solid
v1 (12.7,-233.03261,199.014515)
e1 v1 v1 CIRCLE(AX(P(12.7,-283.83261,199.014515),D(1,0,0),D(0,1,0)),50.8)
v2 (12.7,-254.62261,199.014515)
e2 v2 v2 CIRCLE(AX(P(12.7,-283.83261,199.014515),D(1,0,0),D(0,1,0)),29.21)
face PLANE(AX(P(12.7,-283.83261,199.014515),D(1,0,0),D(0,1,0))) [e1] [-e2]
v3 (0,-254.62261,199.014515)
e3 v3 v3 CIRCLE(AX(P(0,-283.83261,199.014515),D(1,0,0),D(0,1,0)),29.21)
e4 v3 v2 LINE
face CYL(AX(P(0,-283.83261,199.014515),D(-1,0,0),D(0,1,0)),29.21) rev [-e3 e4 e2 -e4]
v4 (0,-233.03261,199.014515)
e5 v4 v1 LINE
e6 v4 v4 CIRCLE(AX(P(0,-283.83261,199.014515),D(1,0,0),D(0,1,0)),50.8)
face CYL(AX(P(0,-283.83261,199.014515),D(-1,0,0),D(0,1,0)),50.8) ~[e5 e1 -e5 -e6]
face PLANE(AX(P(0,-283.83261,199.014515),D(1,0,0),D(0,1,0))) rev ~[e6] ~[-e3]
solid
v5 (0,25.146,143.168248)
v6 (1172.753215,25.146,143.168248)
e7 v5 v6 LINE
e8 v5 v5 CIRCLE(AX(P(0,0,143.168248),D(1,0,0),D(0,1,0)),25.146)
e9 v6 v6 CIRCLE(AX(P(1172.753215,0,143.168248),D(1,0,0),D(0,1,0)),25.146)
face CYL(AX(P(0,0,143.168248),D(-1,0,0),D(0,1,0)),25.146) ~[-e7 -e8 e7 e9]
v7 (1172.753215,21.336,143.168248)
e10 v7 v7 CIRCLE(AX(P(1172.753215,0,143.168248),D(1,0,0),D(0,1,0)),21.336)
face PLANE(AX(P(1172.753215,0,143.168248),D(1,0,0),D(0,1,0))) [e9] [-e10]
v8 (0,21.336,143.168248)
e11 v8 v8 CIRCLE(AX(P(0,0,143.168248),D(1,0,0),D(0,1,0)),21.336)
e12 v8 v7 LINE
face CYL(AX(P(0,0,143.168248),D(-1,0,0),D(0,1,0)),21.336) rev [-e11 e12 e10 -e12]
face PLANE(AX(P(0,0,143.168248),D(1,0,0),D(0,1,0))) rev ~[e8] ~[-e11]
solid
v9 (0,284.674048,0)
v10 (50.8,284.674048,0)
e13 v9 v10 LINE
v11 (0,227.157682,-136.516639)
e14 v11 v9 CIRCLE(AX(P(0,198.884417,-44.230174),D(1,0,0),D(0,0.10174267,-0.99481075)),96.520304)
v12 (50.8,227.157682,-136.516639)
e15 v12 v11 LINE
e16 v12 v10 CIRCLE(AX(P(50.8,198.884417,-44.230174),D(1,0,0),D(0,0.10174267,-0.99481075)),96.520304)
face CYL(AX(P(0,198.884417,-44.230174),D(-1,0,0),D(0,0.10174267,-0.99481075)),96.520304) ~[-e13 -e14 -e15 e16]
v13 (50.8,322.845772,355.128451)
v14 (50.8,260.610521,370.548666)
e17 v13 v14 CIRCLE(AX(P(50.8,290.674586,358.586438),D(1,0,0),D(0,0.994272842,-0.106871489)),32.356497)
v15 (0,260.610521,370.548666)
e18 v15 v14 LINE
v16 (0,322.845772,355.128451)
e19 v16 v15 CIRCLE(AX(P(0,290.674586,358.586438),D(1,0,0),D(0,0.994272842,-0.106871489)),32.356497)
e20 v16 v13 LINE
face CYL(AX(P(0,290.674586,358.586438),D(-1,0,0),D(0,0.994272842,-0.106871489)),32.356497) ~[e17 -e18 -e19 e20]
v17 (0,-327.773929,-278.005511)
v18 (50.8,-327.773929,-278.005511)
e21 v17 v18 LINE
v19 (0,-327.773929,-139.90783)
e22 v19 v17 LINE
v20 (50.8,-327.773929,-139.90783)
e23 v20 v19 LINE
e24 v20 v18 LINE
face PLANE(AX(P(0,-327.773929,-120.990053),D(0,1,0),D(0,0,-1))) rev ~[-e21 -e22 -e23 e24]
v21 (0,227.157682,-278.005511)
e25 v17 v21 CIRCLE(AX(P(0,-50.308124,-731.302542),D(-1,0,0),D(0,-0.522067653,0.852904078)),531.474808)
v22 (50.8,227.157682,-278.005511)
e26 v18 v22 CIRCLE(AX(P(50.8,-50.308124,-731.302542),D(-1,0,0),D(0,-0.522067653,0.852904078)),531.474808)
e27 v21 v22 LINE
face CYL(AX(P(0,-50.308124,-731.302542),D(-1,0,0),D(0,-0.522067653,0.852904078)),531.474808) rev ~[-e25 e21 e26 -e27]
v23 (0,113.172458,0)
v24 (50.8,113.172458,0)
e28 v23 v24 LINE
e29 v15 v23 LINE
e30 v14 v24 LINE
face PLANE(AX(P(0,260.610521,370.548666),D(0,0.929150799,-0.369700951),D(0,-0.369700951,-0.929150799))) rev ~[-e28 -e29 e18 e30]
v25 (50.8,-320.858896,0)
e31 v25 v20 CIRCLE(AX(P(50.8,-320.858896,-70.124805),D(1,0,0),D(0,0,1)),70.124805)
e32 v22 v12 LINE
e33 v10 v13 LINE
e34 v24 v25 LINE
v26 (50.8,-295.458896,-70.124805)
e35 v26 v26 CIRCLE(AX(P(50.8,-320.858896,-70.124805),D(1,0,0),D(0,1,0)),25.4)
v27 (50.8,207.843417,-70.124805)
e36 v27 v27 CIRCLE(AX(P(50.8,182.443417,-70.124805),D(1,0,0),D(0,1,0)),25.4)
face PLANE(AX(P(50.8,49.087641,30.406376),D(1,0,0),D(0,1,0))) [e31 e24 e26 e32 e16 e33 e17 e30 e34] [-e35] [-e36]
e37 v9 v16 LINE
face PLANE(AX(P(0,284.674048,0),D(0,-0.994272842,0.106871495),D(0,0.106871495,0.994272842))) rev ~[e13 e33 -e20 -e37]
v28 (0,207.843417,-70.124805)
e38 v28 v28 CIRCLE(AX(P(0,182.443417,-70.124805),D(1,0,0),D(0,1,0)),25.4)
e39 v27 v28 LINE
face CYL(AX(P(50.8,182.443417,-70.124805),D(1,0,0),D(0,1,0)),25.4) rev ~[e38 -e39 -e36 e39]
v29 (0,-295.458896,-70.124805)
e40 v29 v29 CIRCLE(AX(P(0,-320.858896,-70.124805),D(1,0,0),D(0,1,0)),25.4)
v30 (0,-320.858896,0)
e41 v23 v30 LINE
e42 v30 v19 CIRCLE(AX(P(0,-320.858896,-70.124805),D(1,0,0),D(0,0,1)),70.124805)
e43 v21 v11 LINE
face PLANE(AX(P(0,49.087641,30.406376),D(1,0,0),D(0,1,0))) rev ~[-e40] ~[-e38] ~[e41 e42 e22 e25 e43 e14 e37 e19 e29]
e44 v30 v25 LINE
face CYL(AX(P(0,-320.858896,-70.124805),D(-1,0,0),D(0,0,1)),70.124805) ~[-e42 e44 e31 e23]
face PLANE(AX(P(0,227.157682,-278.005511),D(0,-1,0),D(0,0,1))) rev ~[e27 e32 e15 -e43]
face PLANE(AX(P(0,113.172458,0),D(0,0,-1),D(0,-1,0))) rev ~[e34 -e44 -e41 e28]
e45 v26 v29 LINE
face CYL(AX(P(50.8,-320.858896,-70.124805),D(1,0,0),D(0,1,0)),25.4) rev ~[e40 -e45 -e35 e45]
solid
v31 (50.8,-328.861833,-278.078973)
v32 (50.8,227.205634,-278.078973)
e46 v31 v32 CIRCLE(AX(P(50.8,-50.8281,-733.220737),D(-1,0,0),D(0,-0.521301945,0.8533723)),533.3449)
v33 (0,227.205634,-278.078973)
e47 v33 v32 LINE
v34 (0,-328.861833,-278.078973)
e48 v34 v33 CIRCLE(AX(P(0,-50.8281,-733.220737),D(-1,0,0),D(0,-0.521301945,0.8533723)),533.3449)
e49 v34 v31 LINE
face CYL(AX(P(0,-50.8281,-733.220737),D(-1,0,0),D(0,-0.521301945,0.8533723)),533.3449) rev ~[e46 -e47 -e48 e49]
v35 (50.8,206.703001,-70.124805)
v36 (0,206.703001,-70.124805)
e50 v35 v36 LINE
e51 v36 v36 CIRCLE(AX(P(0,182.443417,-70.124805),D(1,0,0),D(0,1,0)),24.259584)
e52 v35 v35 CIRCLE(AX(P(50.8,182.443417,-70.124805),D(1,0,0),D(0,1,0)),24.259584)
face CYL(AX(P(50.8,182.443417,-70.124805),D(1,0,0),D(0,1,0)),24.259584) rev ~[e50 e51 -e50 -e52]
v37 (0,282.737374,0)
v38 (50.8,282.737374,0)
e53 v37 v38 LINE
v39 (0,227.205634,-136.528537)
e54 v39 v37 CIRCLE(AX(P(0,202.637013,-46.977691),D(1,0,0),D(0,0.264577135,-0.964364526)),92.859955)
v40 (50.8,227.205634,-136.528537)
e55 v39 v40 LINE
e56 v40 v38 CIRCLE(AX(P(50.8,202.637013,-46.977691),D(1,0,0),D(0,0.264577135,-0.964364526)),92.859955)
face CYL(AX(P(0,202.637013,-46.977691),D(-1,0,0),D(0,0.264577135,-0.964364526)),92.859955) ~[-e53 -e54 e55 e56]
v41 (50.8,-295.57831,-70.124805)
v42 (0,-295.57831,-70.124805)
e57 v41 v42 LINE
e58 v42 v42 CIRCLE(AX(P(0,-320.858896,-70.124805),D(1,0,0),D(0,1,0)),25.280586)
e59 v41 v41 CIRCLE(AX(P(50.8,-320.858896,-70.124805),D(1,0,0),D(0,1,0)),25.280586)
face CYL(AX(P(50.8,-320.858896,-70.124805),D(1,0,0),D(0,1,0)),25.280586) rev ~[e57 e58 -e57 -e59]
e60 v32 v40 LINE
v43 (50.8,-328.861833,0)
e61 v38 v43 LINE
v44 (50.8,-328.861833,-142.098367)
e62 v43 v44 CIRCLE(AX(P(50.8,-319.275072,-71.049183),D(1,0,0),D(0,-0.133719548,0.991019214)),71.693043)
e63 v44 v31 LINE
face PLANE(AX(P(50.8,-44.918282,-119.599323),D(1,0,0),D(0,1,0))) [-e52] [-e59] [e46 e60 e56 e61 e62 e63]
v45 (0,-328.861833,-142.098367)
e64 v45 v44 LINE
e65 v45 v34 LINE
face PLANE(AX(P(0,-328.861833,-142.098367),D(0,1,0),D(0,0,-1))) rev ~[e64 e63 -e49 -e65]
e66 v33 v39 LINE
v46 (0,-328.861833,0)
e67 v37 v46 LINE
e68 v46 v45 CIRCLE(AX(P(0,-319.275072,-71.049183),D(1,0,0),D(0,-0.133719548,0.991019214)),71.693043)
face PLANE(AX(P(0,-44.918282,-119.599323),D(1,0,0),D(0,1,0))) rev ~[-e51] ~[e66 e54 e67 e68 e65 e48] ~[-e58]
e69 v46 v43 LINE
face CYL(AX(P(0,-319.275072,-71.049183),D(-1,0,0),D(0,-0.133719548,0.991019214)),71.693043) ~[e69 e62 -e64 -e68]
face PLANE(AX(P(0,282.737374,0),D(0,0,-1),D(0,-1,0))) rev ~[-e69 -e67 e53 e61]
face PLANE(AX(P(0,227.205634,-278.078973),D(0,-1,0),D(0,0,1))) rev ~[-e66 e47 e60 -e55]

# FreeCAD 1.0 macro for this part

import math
import FreeCAD as App
import Part
import Sketcher
Q = App.Units.Quantity

doc = App.newDocument("Part")
body = doc.addObject("PartDesign::Body", "Body")

sketch1 = body.newObject("Sketcher::SketchObject", "Sketch")
sketch1.AttachmentSupport = (doc.getObject("YZ_Plane"), [""])
sketch1.MapMode = "FlatFace"
sketch1.addGeometry(Part.LineSegment(App.Vector(113, 0, 0), App.Vector(-321, 0, 0)), False)
sketch1.addGeometry(Part.ArcOfCircle(Part.Circle(App.Vector(-321, -70, 0), App.Vector(0, 0, 1), 70), math.radians(90), math.radians(270)), False)
sketch1.addGeometry(Part.LineSegment(App.Vector(-321, -140, 0), App.Vector(209, -140, 0)), False)
sketch1.addGeometry(Part.ArcOfCircle(Part.Circle(App.Vector(199, -44, 0), App.Vector(0, 0, 1), 97), math.radians(-84), math.radians(27)), False)
sketch1.addGeometry(Part.LineSegment(App.Vector(285, 0, 0), App.Vector(323, 355, 0)), False)
sketch1.addGeometry(Part.ArcOfCircle(Part.Circle(App.Vector(291, 359, 0), App.Vector(0, 0, 1), 32), math.radians(-6), math.radians(158)), False)
sketch1.addGeometry(Part.LineSegment(App.Vector(261, 371, 0), App.Vector(113, 0, 0)), False)
sketch1.addConstraint(Sketcher.Constraint("Tangent", 0, 2, 1, 1))
sketch1.addConstraint(Sketcher.Constraint("Tangent", 1, 2, 2, 1))
sketch1.addConstraint(Sketcher.Constraint("Coincident", 2, 2, 3, 1))
sketch1.addConstraint(Sketcher.Constraint("Coincident", 3, 2, 4, 1))
sketch1.addConstraint(Sketcher.Constraint("Tangent", 4, 2, 5, 1))
sketch1.addConstraint(Sketcher.Constraint("Tangent", 5, 2, 6, 1))
sketch1.addConstraint(Sketcher.Constraint("Coincident", 6, 2, 0, 1))
sketch1.addConstraint(Sketcher.Constraint("Horizontal", 0))
sketch1.addConstraint(Sketcher.Constraint("Horizontal", 2))
sketch1.addConstraint(Sketcher.Constraint("PointOnObject", 0, 2, -1))
sketch1.addConstraint(Sketcher.Constraint("PointOnObject", 3, 2, -1))
sketch1.addConstraint(Sketcher.Constraint("Radius", 1, Q("70.124805 mm")))
sketch1.addConstraint(Sketcher.Constraint("Radius", 3, Q("96.520304 mm")))
sketch1.addConstraint(Sketcher.Constraint("Radius", 5, Q("32.356497 mm")))
sketch1.addConstraint(Sketcher.Constraint("DistanceX", 2, 2, 3, 2, Q("75.969398 mm")))
sketch1.addConstraint(Sketcher.Constraint("Distance", 6, Q("398.803581 mm")))
sketch1.addConstraint(Sketcher.Constraint("DistanceX", 0, 2, 0, 1, Q("434.031354 mm")))
sketch1.addConstraint(Sketcher.Constraint("DistanceX", 2, 1, 2, 2, Q("529.563546 mm")))
sketch1.addConstraint(Sketcher.Constraint("DistanceY", -1, 1, 5, 3, Q("358.586438 mm")))
sketch1.addConstraint(Sketcher.Constraint("DistanceX", -1, 1, 2, 2, Q("208.70465 mm")))
pad1 = body.newObject("PartDesign::Pad", "Pad")
pad1.Profile = sketch1
pad1.Length = Q("2 in")

sketch2 = body.newObject("Sketcher::SketchObject", "Sketch001")
sketch2.AttachmentSupport = (doc.getObject("YZ_Plane"), [""])
sketch2.MapMode = "FlatFace"
sketch2.addGeometry(Part.LineSegment(App.Vector(-328, -121, 0), App.Vector(-328, -278, 0)), False)
sketch2.addGeometry(Part.ArcOfCircle(Part.Circle(App.Vector(-50, -731, 0), App.Vector(0, 0, 1), 531), math.radians(59), math.radians(121)), False)
sketch2.addGeometry(Part.LineSegment(App.Vector(227, -278, 0), App.Vector(227, -121, 0)), False)
sketch2.addGeometry(Part.LineSegment(App.Vector(227, -121, 0), App.Vector(-328, -121, 0)), False)
sketch2.addConstraint(Sketcher.Constraint("Coincident", 0, 2, 1, 2))
sketch2.addConstraint(Sketcher.Constraint("Coincident", 1, 1, 2, 1))
sketch2.addConstraint(Sketcher.Constraint("Coincident", 2, 2, 3, 1))
sketch2.addConstraint(Sketcher.Constraint("Coincident", 3, 2, 0, 1))
sketch2.addConstraint(Sketcher.Constraint("Vertical", 0))
sketch2.addConstraint(Sketcher.Constraint("Vertical", 2))
sketch2.addConstraint(Sketcher.Constraint("Horizontal", 3))
sketch2.addConstraint(Sketcher.Constraint("Horizontal", 0, 2, 1, 1))
sketch2.addConstraint(Sketcher.Constraint("Radius", 1, Q("531.474808 mm")))
sketch2.addConstraint(Sketcher.Constraint("DistanceX", 3, 2, 3, 1, Q("554.931611 mm")))
sketch2.addConstraint(Sketcher.Constraint("DistanceY", 0, 2, 0, 1, Q("157.015458 mm")))
sketch2.addConstraint(Sketcher.Constraint("DistanceY", 1, 3, -1, 1, Q("731.302542 mm")))
sketch2.addConstraint(Sketcher.Constraint("DistanceX", 0, 2, -1, 1, Q("327.773929 mm")))
pad2 = body.newObject("PartDesign::Pad", "Pad001")
pad2.Profile = sketch2
pad2.Length = Q("2 in")

sketch3 = body.newObject("Sketcher::SketchObject", "Sketch002")
sketch3.AttachmentSupport = (doc.getObject("YZ_Plane"), [""])
sketch3.MapMode = "FlatFace"
sketch3.AttachmentOffset = App.Placement(App.Vector(0, 0, 2 * 25.4), App.Rotation())
sketch3.addGeometry(Part.Circle(App.Vector(-321, -70, 0), App.Vector(0, 0, 1), 25), False)
sketch3.addGeometry(Part.Circle(App.Vector(182, -70, 0), App.Vector(0, 0, 1), 25), False)
sketch3.addConstraint(Sketcher.Constraint("Equal", 0, 1))
sketch3.addConstraint(Sketcher.Constraint("Horizontal", 0, 3, 1, 3))
sketch3.addConstraint(Sketcher.Constraint("Diameter", 0, Q("2 in")))
sketch3.addConstraint(Sketcher.Constraint("DistanceX", 0, 3, -1, 1, Q("320.858896 mm")))
sketch3.addConstraint(Sketcher.Constraint("DistanceY", 0, 3, -1, 1, Q("70.124805 mm")))
sketch3.addConstraint(Sketcher.Constraint("DistanceX", -1, 1, 1, 3, Q("182.443417 mm")))
pocket1 = body.newObject("PartDesign::Pocket", "Pocket")
pocket1.Profile = sketch3
pocket1.Type = "ThroughAll"
body2 = doc.addObject("PartDesign::Body", "Body001")

sketch4 = body2.newObject("Sketcher::SketchObject", "Sketch003")
sketch4.AttachmentSupport = (doc.getObject("YZ_Plane001"), [""])
sketch4.MapMode = "FlatFace"
sketch4.addGeometry(Part.Circle(App.Vector(-284, 199, 0), App.Vector(0, 0, 1), 51), False)
sketch4.addGeometry(Part.Circle(App.Vector(-284, 199, 0), App.Vector(0, 0, 1), 29), False)
sketch4.addConstraint(Sketcher.Constraint("Coincident", 1, 3, 0, 3))
sketch4.addConstraint(Sketcher.Constraint("Diameter", 0, Q("4 in")))
sketch4.addConstraint(Sketcher.Constraint("Diameter", 1, Q("2.3 in")))
sketch4.addConstraint(Sketcher.Constraint("DistanceX", 0, 3, -1, 1, Q("283.83261 mm")))
sketch4.addConstraint(Sketcher.Constraint("DistanceY", -1, 1, 0, 3, Q("199.014515 mm")))
pad3 = body2.newObject("PartDesign::Pad", "Pad002")
pad3.Profile = sketch4
pad3.Length = Q("0.5 in")
body3 = doc.addObject("PartDesign::Body", "Body002")

sketch5 = body3.newObject("Sketcher::SketchObject", "Sketch004")
sketch5.AttachmentSupport = (doc.getObject("YZ_Plane002"), [""])
sketch5.MapMode = "FlatFace"
sketch5.addGeometry(Part.Circle(App.Vector(0, 143, 0), App.Vector(0, 0, 1), 25), False)
sketch5.addGeometry(Part.Circle(App.Vector(0, 143, 0), App.Vector(0, 0, 1), 21), False)
sketch5.addConstraint(Sketcher.Constraint("Coincident", 1, 3, 0, 3))
sketch5.addConstraint(Sketcher.Constraint("PointOnObject", 0, 3, -2))
sketch5.addConstraint(Sketcher.Constraint("Diameter", 0, Q("1.98 in")))
sketch5.addConstraint(Sketcher.Constraint("Diameter", 1, Q("1.68 in")))
sketch5.addConstraint(Sketcher.Constraint("DistanceY", -1, 1, 0, 3, Q("143.168248 mm")))
pad4 = body3.newObject("PartDesign::Pad", "Pad003")
pad4.Profile = sketch5
pad4.Length = 1172.753215
body4 = doc.addObject("PartDesign::Body", "Body003")

sketch6 = body4.newObject("Sketcher::SketchObject", "Sketch005")
sketch6.AttachmentSupport = (doc.getObject("YZ_Plane003"), [""])
sketch6.MapMode = "FlatFace"
sketch6.addGeometry(Part.LineSegment(App.Vector(283, 0, 0), App.Vector(-329, 0, 0)), False)
sketch6.addGeometry(Part.ArcOfCircle(Part.Circle(App.Vector(-319, -71, 0), App.Vector(0, 0, 1), 72), math.radians(98), math.radians(262)), False)
sketch6.addGeometry(Part.LineSegment(App.Vector(-329, -142, 0), App.Vector(-329, -278, 0)), False)
sketch6.addGeometry(Part.ArcOfCircle(Part.Circle(App.Vector(-51, -733, 0), App.Vector(0, 0, 1), 533), math.radians(59), math.radians(121)), False)
sketch6.addGeometry(Part.LineSegment(App.Vector(227, -278, 0), App.Vector(227, -137, 0)), False)
sketch6.addGeometry(Part.ArcOfCircle(Part.Circle(App.Vector(203, -47, 0), App.Vector(0, 0, 1), 93), math.radians(-75), math.radians(30)), False)
sketch6.addConstraint(Sketcher.Constraint("Coincident", 0, 2, 1, 1))
sketch6.addConstraint(Sketcher.Constraint("Coincident", 1, 2, 2, 1))
sketch6.addConstraint(Sketcher.Constraint("Coincident", 2, 2, 3, 2))
sketch6.addConstraint(Sketcher.Constraint("Coincident", 3, 1, 4, 1))
sketch6.addConstraint(Sketcher.Constraint("Coincident", 4, 2, 5, 1))
sketch6.addConstraint(Sketcher.Constraint("Coincident", 5, 2, 0, 1))
sketch6.addConstraint(Sketcher.Constraint("Horizontal", 0))
sketch6.addConstraint(Sketcher.Constraint("Vertical", 2))
sketch6.addConstraint(Sketcher.Constraint("Vertical", 4))
sketch6.addConstraint(Sketcher.Constraint("PointOnObject", 0, 2, -1))
sketch6.addConstraint(Sketcher.Constraint("Horizontal", 2, 2, 3, 1))
sketch6.addConstraint(Sketcher.Constraint("Vertical", 0, 2, 1, 2))
sketch6.addConstraint(Sketcher.Constraint("Radius", 3, Q("533.3449 mm")))
sketch6.addConstraint(Sketcher.Constraint("Radius", 1, Q("71.693043 mm")))
sketch6.addConstraint(Sketcher.Constraint("Radius", 5, Q("92.859955 mm")))
sketch6.addConstraint(Sketcher.Constraint("DistanceX", 3, 3, -1, 1, Q("50.8281 mm")))
sketch6.addConstraint(Sketcher.Constraint("DistanceX", 0, 2, 0, 1, Q("611.599207 mm")))
sketch6.addConstraint(Sketcher.Constraint("DistanceY", 2, 2, 2, 1, Q("135.980606 mm")))
sketch6.addConstraint(Sketcher.Constraint("DistanceY", 4, 1, 4, 2, Q("141.550436 mm")))
sketch6.addConstraint(Sketcher.Constraint("DistanceX", 1, 3, -1, 1, Q("319.275072 mm")))
sketch6.addConstraint(Sketcher.Constraint("DistanceY", 5, 3, -1, 1, Q("46.977691 mm")))
pad5 = body4.newObject("PartDesign::Pad", "Pad004")
pad5.Profile = sketch6
pad5.Length = Q("2 in")

sketch7 = body4.newObject("Sketcher::SketchObject", "Sketch006")
sketch7.AttachmentSupport = (doc.getObject("YZ_Plane003"), [""])
sketch7.MapMode = "FlatFace"
sketch7.AttachmentOffset = App.Placement(App.Vector(0, 0, 2 * 25.4), App.Rotation())
sketch7.addGeometry(Part.Circle(App.Vector(-321, -70, 0), App.Vector(0, 0, 1), 25), False)
sketch7.addGeometry(Part.Circle(App.Vector(182, -70, 0), App.Vector(0, 0, 1), 24), False)
sketch7.addConstraint(Sketcher.Constraint("Horizontal", 0, 3, 1, 3))
sketch7.addConstraint(Sketcher.Constraint("Diameter", 0, Q("50.561172 mm")))
sketch7.addConstraint(Sketcher.Constraint("Diameter", 1, Q("48.519168 mm")))
sketch7.addConstraint(Sketcher.Constraint("DistanceX", 0, 3, -1, 1, Q("320.858896 mm")))
sketch7.addConstraint(Sketcher.Constraint("DistanceY", 0, 3, -1, 1, Q("70.124805 mm")))
sketch7.addConstraint(Sketcher.Constraint("DistanceX", -1, 1, 1, 3, Q("182.443417 mm")))
pocket2 = body4.newObject("PartDesign::Pocket", "Pocket001")
pocket2.Profile = sketch7
pocket2.Type = "ThroughAll"

doc.recompute()
